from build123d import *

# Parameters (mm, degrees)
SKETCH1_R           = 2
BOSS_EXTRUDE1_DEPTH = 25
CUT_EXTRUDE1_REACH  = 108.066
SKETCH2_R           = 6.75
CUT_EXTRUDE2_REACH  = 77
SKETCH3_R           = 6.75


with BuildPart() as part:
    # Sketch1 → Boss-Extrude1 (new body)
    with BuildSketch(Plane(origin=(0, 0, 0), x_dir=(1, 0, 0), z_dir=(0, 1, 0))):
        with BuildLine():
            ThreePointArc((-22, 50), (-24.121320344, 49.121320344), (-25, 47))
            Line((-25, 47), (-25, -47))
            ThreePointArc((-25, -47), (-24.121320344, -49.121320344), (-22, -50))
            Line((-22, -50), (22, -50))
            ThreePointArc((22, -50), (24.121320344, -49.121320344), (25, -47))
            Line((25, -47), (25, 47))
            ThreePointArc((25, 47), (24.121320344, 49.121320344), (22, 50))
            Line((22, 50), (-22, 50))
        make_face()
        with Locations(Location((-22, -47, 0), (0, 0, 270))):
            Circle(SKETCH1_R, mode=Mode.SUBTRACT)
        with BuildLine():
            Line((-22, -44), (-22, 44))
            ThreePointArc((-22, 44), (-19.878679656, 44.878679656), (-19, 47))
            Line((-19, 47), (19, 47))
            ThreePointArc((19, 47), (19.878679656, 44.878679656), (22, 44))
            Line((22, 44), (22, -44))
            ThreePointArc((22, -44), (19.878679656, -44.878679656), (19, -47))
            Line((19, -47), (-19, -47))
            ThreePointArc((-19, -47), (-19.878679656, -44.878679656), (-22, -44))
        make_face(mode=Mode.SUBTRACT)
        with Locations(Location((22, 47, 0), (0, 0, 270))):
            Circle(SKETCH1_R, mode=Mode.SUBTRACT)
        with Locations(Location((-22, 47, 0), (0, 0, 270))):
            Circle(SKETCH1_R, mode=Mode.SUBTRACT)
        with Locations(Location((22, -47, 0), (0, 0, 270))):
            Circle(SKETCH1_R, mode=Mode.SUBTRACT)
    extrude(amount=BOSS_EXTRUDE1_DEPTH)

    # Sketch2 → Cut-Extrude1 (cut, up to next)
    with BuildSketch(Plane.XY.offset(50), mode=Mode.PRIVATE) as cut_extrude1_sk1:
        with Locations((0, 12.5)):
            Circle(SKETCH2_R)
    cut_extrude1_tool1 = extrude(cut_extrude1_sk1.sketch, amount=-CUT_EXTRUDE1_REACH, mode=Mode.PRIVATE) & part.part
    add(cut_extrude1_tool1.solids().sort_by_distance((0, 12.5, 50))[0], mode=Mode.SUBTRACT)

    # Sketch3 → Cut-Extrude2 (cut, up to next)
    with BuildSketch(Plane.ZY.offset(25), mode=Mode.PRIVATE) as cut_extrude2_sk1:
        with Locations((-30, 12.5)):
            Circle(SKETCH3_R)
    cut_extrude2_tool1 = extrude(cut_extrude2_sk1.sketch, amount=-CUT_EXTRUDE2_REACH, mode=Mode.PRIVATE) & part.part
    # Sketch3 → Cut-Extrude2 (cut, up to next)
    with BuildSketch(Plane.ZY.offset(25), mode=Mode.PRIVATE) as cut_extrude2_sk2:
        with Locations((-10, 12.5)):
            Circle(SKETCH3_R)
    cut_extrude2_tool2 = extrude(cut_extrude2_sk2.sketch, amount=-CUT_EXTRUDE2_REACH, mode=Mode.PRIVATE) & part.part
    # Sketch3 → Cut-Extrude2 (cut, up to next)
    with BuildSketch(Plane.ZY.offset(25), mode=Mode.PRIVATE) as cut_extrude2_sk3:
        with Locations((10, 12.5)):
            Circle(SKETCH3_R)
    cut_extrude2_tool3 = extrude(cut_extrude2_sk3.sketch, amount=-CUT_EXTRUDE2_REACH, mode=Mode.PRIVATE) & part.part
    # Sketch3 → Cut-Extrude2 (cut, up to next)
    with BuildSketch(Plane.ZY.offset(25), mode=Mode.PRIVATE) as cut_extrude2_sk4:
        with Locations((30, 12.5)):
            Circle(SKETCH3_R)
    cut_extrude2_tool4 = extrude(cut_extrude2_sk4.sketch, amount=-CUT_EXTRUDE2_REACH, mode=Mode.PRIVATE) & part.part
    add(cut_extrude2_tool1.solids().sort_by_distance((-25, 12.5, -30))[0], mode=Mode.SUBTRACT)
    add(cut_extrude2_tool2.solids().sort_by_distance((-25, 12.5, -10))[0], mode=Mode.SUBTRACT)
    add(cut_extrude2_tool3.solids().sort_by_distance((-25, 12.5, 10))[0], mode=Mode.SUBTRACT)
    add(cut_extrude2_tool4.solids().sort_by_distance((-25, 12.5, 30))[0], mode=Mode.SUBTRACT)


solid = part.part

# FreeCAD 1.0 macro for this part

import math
import FreeCAD as App
import Part
import Sketcher

V = App.Vector

doc = App.newDocument("Part")
body = doc.addObject("PartDesign::Body", "Body")

# Sketch on XZ plane
sketch1 = body.newObject("Sketcher::SketchObject", "Sketch")
sketch1.AttachmentSupport = (doc.getObject("XZ_Plane"), [""])
sketch1.MapMode = "FlatFace"
sketch1.addGeometry([
    Part.ArcOfCircle(Part.Circle(V(-22, -47, 0), V(0, 0, 1), 3), math.radians(180), math.radians(270)),  # 0
    Part.LineSegment(V(-25, -47, 0), V(-25, 47, 0)),  # 1
    Part.ArcOfCircle(Part.Circle(V(-22, 47, 0), V(0, 0, 1), 3), math.radians(90), math.radians(180)),  # 2
    Part.LineSegment(V(-22, 50, 0), V(22, 50, 0)),  # 3
    Part.ArcOfCircle(Part.Circle(V(22, 47, 0), V(0, 0, 1), 3), math.radians(0), math.radians(90)),  # 4
    Part.LineSegment(V(25, 47, 0), V(25, -47, 0)),  # 5
    Part.ArcOfCircle(Part.Circle(V(22, -47, 0), V(0, 0, 1), 3), math.radians(-90), math.radians(0)),  # 6
    Part.LineSegment(V(22, -50, 0), V(-22, -50, 0)),  # 7
    Part.Circle(V(-22, 47, 0), V(0, 0, 1), 2),  # 8
    Part.Circle(V(22, 47, 0), V(0, 0, 1), 2),  # 9
    Part.ArcOfCircle(Part.Circle(V(-22, 47, 0), V(0, 0, 1), 3), math.radians(-90), math.radians(0)),  # 10
    Part.LineSegment(V(-22, 44, 0), V(-22, -44, 0)),  # 11
    Part.ArcOfCircle(Part.Circle(V(-22, -47, 0), V(0, 0, 1), 3), math.radians(0), math.radians(90)),  # 12
    Part.LineSegment(V(-19, -47, 0), V(19, -47, 0)),  # 13
    Part.ArcOfCircle(Part.Circle(V(22, -47, 0), V(0, 0, 1), 3), math.radians(90), math.radians(180)),  # 14
    Part.LineSegment(V(22, -44, 0), V(22, 44, 0)),  # 15
    Part.ArcOfCircle(Part.Circle(V(22, 47, 0), V(0, 0, 1), 3), math.radians(180), math.radians(270)),  # 16
    Part.LineSegment(V(19, 47, 0), V(-19, 47, 0)),  # 17
    Part.Circle(V(-22, -47, 0), V(0, 0, 1), 2),  # 18
    Part.Circle(V(22, -47, 0), V(0, 0, 1), 2),  # 19
], False)
sketch1.addConstraint([
    Sketcher.Constraint("Tangent", 0, 1, 1, 1),
    Sketcher.Constraint("Tangent", 1, 2, 2, 2),
    Sketcher.Constraint("Tangent", 2, 1, 3, 1),
    Sketcher.Constraint("Tangent", 3, 2, 4, 2),
    Sketcher.Constraint("Tangent", 4, 1, 5, 1),
    Sketcher.Constraint("Tangent", 5, 2, 6, 2),
    Sketcher.Constraint("Tangent", 6, 1, 7, 1),
    Sketcher.Constraint("Tangent", 7, 2, 0, 2),
    Sketcher.Constraint("Coincident", 10, 1, 11, 1),
    Sketcher.Constraint("Coincident", 11, 2, 12, 2),
    Sketcher.Constraint("Coincident", 12, 1, 13, 1),
    Sketcher.Constraint("Coincident", 13, 2, 14, 2),
    Sketcher.Constraint("Coincident", 14, 1, 15, 1),
    Sketcher.Constraint("Coincident", 15, 2, 16, 2),
    Sketcher.Constraint("Coincident", 16, 1, 17, 1),
    Sketcher.Constraint("Coincident", 17, 2, 10, 2),
    Sketcher.Constraint("Vertical", 1),
    Sketcher.Constraint("Horizontal", 3),
    Sketcher.Constraint("Vertical", 5),
    Sketcher.Constraint("Horizontal", 7),
    Sketcher.Constraint("Vertical", 11),
    Sketcher.Constraint("Horizontal", 13),
    Sketcher.Constraint("Vertical", 15),
    Sketcher.Constraint("Horizontal", 17),
    Sketcher.Constraint("Coincident", 8, 3, 2, 3),
    Sketcher.Constraint("Coincident", 9, 3, 4, 3),
    Sketcher.Constraint("Coincident", 10, 3, 2, 3),
    Sketcher.Constraint("Coincident", 12, 3, 0, 3),
    Sketcher.Constraint("Coincident", 14, 3, 6, 3),
    Sketcher.Constraint("Coincident", 16, 3, 4, 3),
    Sketcher.Constraint("Coincident", 18, 3, 0, 3),
    Sketcher.Constraint("Coincident", 19, 3, 6, 3),
    Sketcher.Constraint("Equal", 0, 2),
    Sketcher.Constraint("Equal", 2, 4),
    Sketcher.Constraint("Equal", 4, 6),
    Sketcher.Constraint("Equal", 8, 9),
    Sketcher.Constraint("Equal", 6, 10),
    Sketcher.Constraint("Equal", 10, 12),
    Sketcher.Constraint("Equal", 12, 14),
    Sketcher.Constraint("Equal", 14, 16),
    Sketcher.Constraint("Equal", 9, 18),
    Sketcher.Constraint("Equal", 18, 19),
    Sketcher.Constraint("Symmetric", 0, 3, 4, 3, -1, 1),
    Sketcher.Constraint("Horizontal", 5, 2, 12, 1),
    Sketcher.Constraint("Horizontal", 4, 1, 16, 1),
    Sketcher.Constraint("Vertical", 7, 2, 10, 1),
    Sketcher.Constraint("Vertical", 6, 1, 14, 1),
    Sketcher.Constraint("Diameter", 8, 4.0),
    Sketcher.Constraint("Radius", 0, 3.0),
    Sketcher.Constraint("DistanceX", 3, 1, 3, 2, 44.0),
    Sketcher.Constraint("DistanceY", 1, 1, 1, 2, 94.0),
])
pad1 = body.newObject("PartDesign::Pad", "Pad")
pad1.Profile = sketch1
pad1.Length = 25
pad1.Reversed = True

# Sketch on XY plane
sketch2 = body.newObject("Sketcher::SketchObject", "Sketch001")
sketch2.AttachmentSupport = (doc.getObject("XY_Plane"), [""])
sketch2.MapMode = "FlatFace"
sketch2.AttachmentOffset = App.Placement(V(0, 0, 50), App.Rotation())
sketch2.addGeometry(Part.Circle(V(0, 12, 0), V(0, 0, 1), 7), False)
sketch2.addConstraint([
    Sketcher.Constraint("PointOnObject", 0, 3, -2),
    Sketcher.Constraint("Diameter", 0, 13.5),
    Sketcher.Constraint("DistanceY", -1, 1, 0, 3, 12.5),
])
pocket1 = body.newObject("PartDesign::Pocket", "Pocket")
pocket1.Profile = sketch2
pocket1.Type = "UpToFirst"

# Sketch on YZ plane
sketch3 = body.newObject("Sketcher::SketchObject", "Sketch002")
sketch3.AttachmentSupport = (doc.getObject("YZ_Plane"), [""])
sketch3.MapMode = "FlatFace"
sketch3.AttachmentOffset = App.Placement(V(0, 0, -25), App.Rotation())
sketch3.addGeometry(Part.Circle(V(12, -30, 0), V(0, 0, 1), 7), False)
sketch3.addConstraint([
    Sketcher.Constraint("Diameter", 0, 13.5),
    Sketcher.Constraint("DistanceY", 0, 3, -1, 1, 30.0),
    Sketcher.Constraint("DistanceX", -1, 1, 0, 3, 12.5),
])
pocket2 = body.newObject("PartDesign::Pocket", "Pocket001")
pocket2.Profile = sketch3
pocket2.Type = "UpToFirst"
pocket2.Reversed = True

# Sketch on YZ plane
sketch4 = body.newObject("Sketcher::SketchObject", "Sketch003")
sketch4.AttachmentSupport = (doc.getObject("YZ_Plane"), [""])
sketch4.MapMode = "FlatFace"
sketch4.AttachmentOffset = App.Placement(V(0, 0, -25), App.Rotation())
sketch4.addGeometry(Part.Circle(V(12, -10, 0), V(0, 0, 1), 7), False)
sketch4.addConstraint([
    Sketcher.Constraint("Diameter", 0, 13.5),
    Sketcher.Constraint("DistanceY", 0, 3, -1, 1, 10.0),
    Sketcher.Constraint("DistanceX", -1, 1, 0, 3, 12.5),
])
pocket3 = body.newObject("PartDesign::Pocket", "Pocket002")
pocket3.Profile = sketch4
pocket3.Type = "UpToFirst"
pocket3.Reversed = True

# Sketch on YZ plane
sketch5 = body.newObject("Sketcher::SketchObject", "Sketch004")
sketch5.AttachmentSupport = (doc.getObject("YZ_Plane"), [""])
sketch5.MapMode = "FlatFace"
sketch5.AttachmentOffset = App.Placement(V(0, 0, -25), App.Rotation())
sketch5.addGeometry(Part.Circle(V(12, 10, 0), V(0, 0, 1), 7), False)
sketch5.addConstraint([
    Sketcher.Constraint("Diameter", 0, 13.5),
    Sketcher.Constraint("DistanceY", -1, 1, 0, 3, 10.0),
    Sketcher.Constraint("DistanceX", -1, 1, 0, 3, 12.5),
])
pocket4 = body.newObject("PartDesign::Pocket", "Pocket003")
pocket4.Profile = sketch5
pocket4.Type = "UpToFirst"
pocket4.Reversed = True

# Sketch on YZ plane
sketch6 = body.newObject("Sketcher::SketchObject", "Sketch005")
sketch6.AttachmentSupport = (doc.getObject("YZ_Plane"), [""])
sketch6.MapMode = "FlatFace"
sketch6.AttachmentOffset = App.Placement(V(0, 0, -25), App.Rotation())
sketch6.addGeometry(Part.Circle(V(12, 30, 0), V(0, 0, 1), 7), False)
sketch6.addConstraint([
    Sketcher.Constraint("Diameter", 0, 13.5),
    Sketcher.Constraint("DistanceY", -1, 1, 0, 3, 30.0),
    Sketcher.Constraint("DistanceX", -1, 1, 0, 3, 12.5),
])
pocket5 = body.newObject("PartDesign::Pocket", "Pocket004")
pocket5.Profile = sketch6
pocket5.Type = "UpToFirst"
pocket5.Reversed = True

doc.recompute()
